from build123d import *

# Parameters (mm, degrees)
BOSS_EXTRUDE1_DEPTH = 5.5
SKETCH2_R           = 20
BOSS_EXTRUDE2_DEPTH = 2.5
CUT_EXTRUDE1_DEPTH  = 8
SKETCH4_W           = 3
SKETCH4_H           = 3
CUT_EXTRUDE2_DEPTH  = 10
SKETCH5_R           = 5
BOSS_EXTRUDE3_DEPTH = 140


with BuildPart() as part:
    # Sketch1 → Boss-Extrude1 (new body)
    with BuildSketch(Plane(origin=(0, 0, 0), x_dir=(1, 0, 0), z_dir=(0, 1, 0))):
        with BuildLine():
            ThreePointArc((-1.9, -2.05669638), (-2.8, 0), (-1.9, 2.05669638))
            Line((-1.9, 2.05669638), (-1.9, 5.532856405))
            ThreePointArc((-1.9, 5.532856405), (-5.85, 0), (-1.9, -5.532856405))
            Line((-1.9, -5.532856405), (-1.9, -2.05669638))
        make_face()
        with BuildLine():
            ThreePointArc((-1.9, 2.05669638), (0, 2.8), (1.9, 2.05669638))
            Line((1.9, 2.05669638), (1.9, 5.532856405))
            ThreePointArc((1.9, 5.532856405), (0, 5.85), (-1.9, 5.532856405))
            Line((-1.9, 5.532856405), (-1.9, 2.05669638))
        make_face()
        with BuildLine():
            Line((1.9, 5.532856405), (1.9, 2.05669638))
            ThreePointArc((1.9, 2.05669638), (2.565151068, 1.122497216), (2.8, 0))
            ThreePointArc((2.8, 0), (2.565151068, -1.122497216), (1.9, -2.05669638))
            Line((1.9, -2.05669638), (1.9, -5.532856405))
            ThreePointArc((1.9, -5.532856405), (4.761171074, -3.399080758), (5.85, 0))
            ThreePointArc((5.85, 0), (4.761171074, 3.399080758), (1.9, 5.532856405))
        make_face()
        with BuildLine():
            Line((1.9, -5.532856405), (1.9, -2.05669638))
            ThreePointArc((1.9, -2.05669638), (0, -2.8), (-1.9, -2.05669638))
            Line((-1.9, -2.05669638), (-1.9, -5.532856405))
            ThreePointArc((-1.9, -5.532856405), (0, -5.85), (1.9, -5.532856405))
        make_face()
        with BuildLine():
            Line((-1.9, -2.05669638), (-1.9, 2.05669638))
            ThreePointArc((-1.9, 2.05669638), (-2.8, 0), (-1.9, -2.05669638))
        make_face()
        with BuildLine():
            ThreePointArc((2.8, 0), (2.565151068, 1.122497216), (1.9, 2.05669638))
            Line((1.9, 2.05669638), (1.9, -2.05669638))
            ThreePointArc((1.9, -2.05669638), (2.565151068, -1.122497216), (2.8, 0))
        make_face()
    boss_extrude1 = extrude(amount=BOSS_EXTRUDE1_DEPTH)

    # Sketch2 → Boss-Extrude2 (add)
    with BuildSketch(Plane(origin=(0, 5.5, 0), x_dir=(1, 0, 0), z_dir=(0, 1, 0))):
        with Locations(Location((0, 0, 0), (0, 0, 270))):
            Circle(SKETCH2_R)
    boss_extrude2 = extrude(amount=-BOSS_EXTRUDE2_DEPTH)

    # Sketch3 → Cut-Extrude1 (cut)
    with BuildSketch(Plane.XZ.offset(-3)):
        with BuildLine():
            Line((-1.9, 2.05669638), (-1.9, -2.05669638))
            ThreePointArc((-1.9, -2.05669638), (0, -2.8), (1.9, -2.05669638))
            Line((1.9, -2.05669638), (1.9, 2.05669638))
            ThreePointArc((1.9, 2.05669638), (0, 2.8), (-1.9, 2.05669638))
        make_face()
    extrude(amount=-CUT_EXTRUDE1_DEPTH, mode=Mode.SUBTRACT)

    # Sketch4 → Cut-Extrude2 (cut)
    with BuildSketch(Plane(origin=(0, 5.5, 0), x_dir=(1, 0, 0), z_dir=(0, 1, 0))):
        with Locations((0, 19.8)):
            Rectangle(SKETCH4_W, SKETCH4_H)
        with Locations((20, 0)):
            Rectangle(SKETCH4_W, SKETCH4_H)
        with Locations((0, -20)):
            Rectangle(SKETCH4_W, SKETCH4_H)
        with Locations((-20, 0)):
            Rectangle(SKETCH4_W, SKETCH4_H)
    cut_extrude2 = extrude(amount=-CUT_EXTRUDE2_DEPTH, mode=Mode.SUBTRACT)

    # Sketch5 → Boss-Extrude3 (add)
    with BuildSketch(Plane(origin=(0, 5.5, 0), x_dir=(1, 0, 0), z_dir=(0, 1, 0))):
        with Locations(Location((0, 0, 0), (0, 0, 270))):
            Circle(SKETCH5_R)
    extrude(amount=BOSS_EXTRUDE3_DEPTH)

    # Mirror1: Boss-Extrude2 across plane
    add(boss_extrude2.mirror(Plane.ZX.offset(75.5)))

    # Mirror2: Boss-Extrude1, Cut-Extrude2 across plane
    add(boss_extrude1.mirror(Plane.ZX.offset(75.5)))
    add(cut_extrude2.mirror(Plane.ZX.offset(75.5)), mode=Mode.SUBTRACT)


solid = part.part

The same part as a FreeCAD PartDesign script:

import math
import FreeCAD as App
import Part
import Sketcher

doc = App.newDocument("Part")
body = doc.addObject("PartDesign::Body", "Body")

# Sketch on XZ plane
sketch1 = body.newObject("Sketcher::SketchObject", "Sketch")
sketch1.AttachmentSupport = (doc.getObject("XZ_Plane"), [""])
sketch1.MapMode = "FlatFace"
sketch1.addGeometry([
    Part.ArcOfCircle(Part.Circle(App.Vector(0, 0, 0), App.Vector(0, 0, 1), 5.9), math.radians(0), math.radians(71)),  # 0
    Part.ArcOfCircle(Part.Circle(App.Vector(0, 0, 0), App.Vector(0, 0, 1), 5.9), math.radians(-71), math.radians(0)),  # 1
    Part.ArcOfCircle(Part.Circle(App.Vector(0, 0, 0), App.Vector(0, 0, 1), 5.8), math.radians(-109), math.radians(-71)),  # 2
    Part.ArcOfCircle(Part.Circle(App.Vector(0, 0, 0), App.Vector(0, 0, 1), 5.8), math.radians(109), math.radians(251)),  # 3
    Part.ArcOfCircle(Part.Circle(App.Vector(0, 0, 0), App.Vector(0, 0, 1), 5.8), math.radians(71), math.radians(109)),  # 4
    Part.ArcOfCircle(Part.Circle(App.Vector(0, 0, 0), App.Vector(0, 0, 1), 2.8), math.radians(-133), math.radians(-47)),  # 5
    Part.LineSegment(App.Vector(1.9, -2.1, 0), App.Vector(1.9, 2.1, 0)),  # 6
    Part.ArcOfCircle(Part.Circle(App.Vector(0, 0, 0), App.Vector(0, 0, 1), 2.8), math.radians(47), math.radians(133)),  # 7
    Part.LineSegment(App.Vector(-1.9, 2.1, 0), App.Vector(-1.9, -2.1, 0)),  # 8
], False)
sketch1.addConstraint([
    Sketcher.Constraint("Tangent", 0, 1, 1, 2),
    Sketcher.Constraint("Tangent", 1, 1, 2, 2),
    Sketcher.Constraint("Tangent", 2, 1, 3, 2),
    Sketcher.Constraint("Tangent", 3, 1, 4, 2),
    Sketcher.Constraint("Tangent", 4, 1, 0, 2),
    Sketcher.Constraint("Coincident", 5, 2, 6, 1),
    Sketcher.Constraint("Coincident", 6, 2, 7, 1),
    Sketcher.Constraint("Coincident", 7, 2, 8, 1),
    Sketcher.Constraint("Coincident", 8, 2, 5, 1),
    Sketcher.Constraint("Vertical", 6),
    Sketcher.Constraint("Vertical", 8),
    Sketcher.Constraint("Coincident", 0, 3, -1, 1),
    Sketcher.Constraint("Coincident", 2, 3, -1, 1),
    Sketcher.Constraint("Coincident", 5, 3, -1, 1),
    Sketcher.Constraint("Coincident", 7, 3, -1, 1),
    Sketcher.Constraint("Equal", 5, 7),
    Sketcher.Constraint("PointOnObject", 0, 1, -1),
    Sketcher.Constraint("Horizontal", 1, 1, 2, 1),
    Sketcher.Constraint("Horizontal", 3, 1, 4, 1),
    Sketcher.Constraint("Horizontal", 6, 2, 7, 2),
    Sketcher.Constraint("Vertical", 2, 1, 3, 1),
    Sketcher.Constraint("Vertical", 4, 1, 5, 2),
    Sketcher.Constraint("Radius", 5, 2.8),
    Sketcher.Constraint("Radius", 0, 5.85),
    Sketcher.Constraint("DistanceX", -1, 1, 1, 1, 1.9),
])
pad1 = body.newObject("PartDesign::Pad", "Pad")
pad1.Profile = sketch1
pad1.Length = 5.5
pad1.Reversed = True

# Sketch on XZ plane
sketch2 = body.newObject("Sketcher::SketchObject", "Sketch001")
sketch2.AttachmentSupport = (doc.getObject("XZ_Plane"), [""])
sketch2.MapMode = "FlatFace"
sketch2.AttachmentOffset = App.Placement(App.Vector(0, 0, -5.5), App.Rotation())
sketch2.addGeometry(Part.Circle(App.Vector(0, 0, 0), App.Vector(0, 0, 1), 20), False)
sketch2.addConstraint([
    Sketcher.Constraint("Coincident", 0, 3, -1, 1),
    Sketcher.Constraint("Diameter", 0, 40.0),
])
pad2 = body.newObject("PartDesign::Pad", "Pad001")
pad2.Profile = sketch2
pad2.Length = 2.5

# Sketch on XZ plane
sketch3 = body.newObject("Sketcher::SketchObject", "Sketch002")
sketch3.AttachmentSupport = (doc.getObject("XZ_Plane"), [""])
sketch3.MapMode = "FlatFace"
sketch3.AttachmentOffset = App.Placement(App.Vector(0, 0, -3), App.Rotation())
sketch3.addGeometry([
    Part.LineSegment(App.Vector(-1.9, 2.1, 0), App.Vector(-1.9, -2.1, 0)),
    Part.ArcOfCircle(Part.Circle(App.Vector(0, 0, 0), App.Vector(0, 0, 1), 2.8), math.radians(-133), math.radians(-47)),
    Part.LineSegment(App.Vector(1.9, -2.1, 0), App.Vector(1.9, 2.1, 0)),
    Part.ArcOfCircle(Part.Circle(App.Vector(0, 0, 0), App.Vector(0, 0, 1), 2.8), math.radians(47), math.radians(133)),
], False)
sketch3.addConstraint([
    Sketcher.Constraint("Coincident", 0, 2, 1, 1),
    Sketcher.Constraint("Coincident", 1, 2, 2, 1),
    Sketcher.Constraint("Coincident", 2, 2, 3, 1),
    Sketcher.Constraint("Coincident", 3, 2, 0, 1),
    Sketcher.Constraint("Vertical", 0),
    Sketcher.Constraint("Vertical", 2),
    Sketcher.Constraint("Coincident", 1, 3, -1, 1),
    Sketcher.Constraint("Coincident", 3, 3, -1, 1),
    Sketcher.Constraint("Equal", 1, 3),
    Sketcher.Constraint("Horizontal", 0, 2, 1, 2),
    Sketcher.Constraint("Radius", 1, 2.8),
    Sketcher.Constraint("DistanceX", 0, 2, -1, 1, 1.9),
])
pocket1 = body.newObject("PartDesign::Pocket", "Pocket")
pocket1.Profile = sketch3
pocket1.Length = 8

# Sketch on XZ plane
sketch4 = body.newObject("Sketcher::SketchObject", "Sketch003")
sketch4.AttachmentSupport = (doc.getObject("XZ_Plane"), [""])
sketch4.MapMode = "FlatFace"
sketch4.AttachmentOffset = App.Placement(App.Vector(0, 0, -5.5), App.Rotation())
sketch4.addGeometry([
    Part.LineSegment(App.Vector(-1.5, -21.3, 0), App.Vector(-1.5, -18.3, 0)),  # 0
    Part.LineSegment(App.Vector(-1.5, -18.3, 0), App.Vector(1.5, -18.3, 0)),  # 1
    Part.LineSegment(App.Vector(1.5, -18.3, 0), App.Vector(1.5, -21.3, 0)),  # 2
    Part.LineSegment(App.Vector(1.5, -21.3, 0), App.Vector(-1.5, -21.3, 0)),  # 3
    Part.LineSegment(App.Vector(18.5, -1.5, 0), App.Vector(18.5, 1.5, 0)),  # 4
    Part.LineSegment(App.Vector(18.5, 1.5, 0), App.Vector(21.5, 1.5, 0)),  # 5
    Part.LineSegment(App.Vector(21.5, 1.5, 0), App.Vector(21.5, -1.5, 0)),  # 6
    Part.LineSegment(App.Vector(21.5, -1.5, 0), App.Vector(18.5, -1.5, 0)),  # 7
    Part.LineSegment(App.Vector(-1.5, 18.5, 0), App.Vector(-1.5, 21.5, 0)),  # 8
    Part.LineSegment(App.Vector(-1.5, 21.5, 0), App.Vector(1.5, 21.5, 0)),  # 9
    Part.LineSegment(App.Vector(1.5, 21.5, 0), App.Vector(1.5, 18.5, 0)),  # 10
    Part.LineSegment(App.Vector(1.5, 18.5, 0), App.Vector(-1.5, 18.5, 0)),  # 11
    Part.LineSegment(App.Vector(-21.5, -1.5, 0), App.Vector(-21.5, 1.5, 0)),  # 12
    Part.LineSegment(App.Vector(-21.5, 1.5, 0), App.Vector(-18.5, 1.5, 0)),  # 13
    Part.LineSegment(App.Vector(-18.5, 1.5, 0), App.Vector(-18.5, -1.5, 0)),  # 14
    Part.LineSegment(App.Vector(-18.5, -1.5, 0), App.Vector(-21.5, -1.5, 0)),  # 15
], False)
sketch4.addConstraint([
    Sketcher.Constraint("Coincident", 0, 2, 1, 1),
    Sketcher.Constraint("Coincident", 1, 2, 2, 1),
    Sketcher.Constraint("Coincident", 2, 2, 3, 1),
    Sketcher.Constraint("Coincident", 3, 2, 0, 1),
    Sketcher.Constraint("Coincident", 4, 2, 5, 1),
    Sketcher.Constraint("Coincident", 5, 2, 6, 1),
    Sketcher.Constraint("Coincident", 6, 2, 7, 1),
    Sketcher.Constraint("Coincident", 7, 2, 4, 1),
    Sketcher.Constraint("Coincident", 8, 2, 9, 1),
    Sketcher.Constraint("Coincident", 9, 2, 10, 1),
    Sketcher.Constraint("Coincident", 10, 2, 11, 1),
    Sketcher.Constraint("Coincident", 11, 2, 8, 1),
    Sketcher.Constraint("Coincident", 12, 2, 13, 1),
    Sketcher.Constraint("Coincident", 13, 2, 14, 1),
    Sketcher.Constraint("Coincident", 14, 2, 15, 1),
    Sketcher.Constraint("Coincident", 15, 2, 12, 1),
    Sketcher.Constraint("Vertical", 0),
    Sketcher.Constraint("Horizontal", 1),
    Sketcher.Constraint("Vertical", 2),
    Sketcher.Constraint("Horizontal", 3),
    Sketcher.Constraint("Vertical", 4),
    Sketcher.Constraint("Horizontal", 5),
    Sketcher.Constraint("Vertical", 6),
    Sketcher.Constraint("Horizontal", 7),
    Sketcher.Constraint("Vertical", 8),
    Sketcher.Constraint("Horizontal", 9),
    Sketcher.Constraint("Vertical", 10),
    Sketcher.Constraint("Horizontal", 11),
    Sketcher.Constraint("Vertical", 12),
    Sketcher.Constraint("Horizontal", 13),
    Sketcher.Constraint("Vertical", 14),
    Sketcher.Constraint("Horizontal", 15),
    Sketcher.Constraint("Symmetric", 6, 2, 12, 2, -1, 1),
    Sketcher.Constraint("Symmetric", 4, 2, 14, 2, -1, 1),
    Sketcher.Constraint("Horizontal", 5, 2, 12, 2),
    Sketcher.Constraint("Vertical", 3, 2, 8, 2),
    Sketcher.Constraint("Vertical", 2, 2, 9, 2),
    Sketcher.Constraint("Equal", 3, 5),
    Sketcher.Constraint("Equal", 15, 0),
    Sketcher.Constraint("Equal", 2, 4),
    Sketcher.Constraint("Equal", 6, 8),
    Sketcher.Constraint("DistanceX", 1, 1, 1, 2, 3.0),
    Sketcher.Constraint("DistanceX", 1, 2, 4, 2, 17.0),
    Sketcher.Constraint("DistanceY", 4, 2, 8, 2, 20.0),
    Sketcher.Constraint("DistanceX", 12, 2, 11, 2, 20.0),
    Sketcher.Constraint("DistanceY", 0, 2, -1, 1, 18.3),
])
pocket2 = body.newObject("PartDesign::Pocket", "Pocket001")
pocket2.Profile = sketch4
pocket2.Length = 10
pocket2.Reversed = True

# Sketch on XZ plane
sketch5 = body.newObject("Sketcher::SketchObject", "Sketch004")
sketch5.AttachmentSupport = (doc.getObject("XZ_Plane"), [""])
sketch5.MapMode = "FlatFace"
sketch5.AttachmentOffset = App.Placement(App.Vector(0, 0, -5.5), App.Rotation())
sketch5.addGeometry(Part.Circle(App.Vector(0, 0, 0), App.Vector(0, 0, 1), 5), False)
sketch5.addConstraint([
    Sketcher.Constraint("Coincident", 0, 3, -1, 1),
    Sketcher.Constraint("Diameter", 0, 10.0),
])
pad3 = body.newObject("PartDesign::Pad", "Pad002")
pad3.Profile = sketch5
pad3.Length = 140
pad3.Reversed = True
doc.recompute()

datumplane = body.newObject("PartDesign::Plane", "DatumPlane")
datumplane.AttachmentSupport = (doc.getObject("XZ_Plane"), [""])
datumplane.MapMode = "FlatFace"
datumplane.AttachmentOffset = App.Placement(App.Vector(0, 0, -75.5), App.Rotation())
mirrored = body.newObject("PartDesign::Mirrored", "Mirrored")
mirrored.Originals = [pad2]
mirrored.MirrorPlane = (datumplane, [""])
body.Tip = mirrored
doc.recompute()

datumplane2 = body.newObject("PartDesign::Plane", "DatumPlane001")
datumplane2.AttachmentSupport = (doc.getObject("XZ_Plane"), [""])
datumplane2.MapMode = "FlatFace"
datumplane2.AttachmentOffset = App.Placement(App.Vector(0, 0, -75.5), App.Rotation())
mirrored2 = body.newObject("PartDesign::Mirrored", "Mirrored001")
mirrored2.Originals = [pad1, pocket2]
mirrored2.MirrorPlane = (datumplane2, [""])
body.Tip = mirrored2

doc.recompute()
